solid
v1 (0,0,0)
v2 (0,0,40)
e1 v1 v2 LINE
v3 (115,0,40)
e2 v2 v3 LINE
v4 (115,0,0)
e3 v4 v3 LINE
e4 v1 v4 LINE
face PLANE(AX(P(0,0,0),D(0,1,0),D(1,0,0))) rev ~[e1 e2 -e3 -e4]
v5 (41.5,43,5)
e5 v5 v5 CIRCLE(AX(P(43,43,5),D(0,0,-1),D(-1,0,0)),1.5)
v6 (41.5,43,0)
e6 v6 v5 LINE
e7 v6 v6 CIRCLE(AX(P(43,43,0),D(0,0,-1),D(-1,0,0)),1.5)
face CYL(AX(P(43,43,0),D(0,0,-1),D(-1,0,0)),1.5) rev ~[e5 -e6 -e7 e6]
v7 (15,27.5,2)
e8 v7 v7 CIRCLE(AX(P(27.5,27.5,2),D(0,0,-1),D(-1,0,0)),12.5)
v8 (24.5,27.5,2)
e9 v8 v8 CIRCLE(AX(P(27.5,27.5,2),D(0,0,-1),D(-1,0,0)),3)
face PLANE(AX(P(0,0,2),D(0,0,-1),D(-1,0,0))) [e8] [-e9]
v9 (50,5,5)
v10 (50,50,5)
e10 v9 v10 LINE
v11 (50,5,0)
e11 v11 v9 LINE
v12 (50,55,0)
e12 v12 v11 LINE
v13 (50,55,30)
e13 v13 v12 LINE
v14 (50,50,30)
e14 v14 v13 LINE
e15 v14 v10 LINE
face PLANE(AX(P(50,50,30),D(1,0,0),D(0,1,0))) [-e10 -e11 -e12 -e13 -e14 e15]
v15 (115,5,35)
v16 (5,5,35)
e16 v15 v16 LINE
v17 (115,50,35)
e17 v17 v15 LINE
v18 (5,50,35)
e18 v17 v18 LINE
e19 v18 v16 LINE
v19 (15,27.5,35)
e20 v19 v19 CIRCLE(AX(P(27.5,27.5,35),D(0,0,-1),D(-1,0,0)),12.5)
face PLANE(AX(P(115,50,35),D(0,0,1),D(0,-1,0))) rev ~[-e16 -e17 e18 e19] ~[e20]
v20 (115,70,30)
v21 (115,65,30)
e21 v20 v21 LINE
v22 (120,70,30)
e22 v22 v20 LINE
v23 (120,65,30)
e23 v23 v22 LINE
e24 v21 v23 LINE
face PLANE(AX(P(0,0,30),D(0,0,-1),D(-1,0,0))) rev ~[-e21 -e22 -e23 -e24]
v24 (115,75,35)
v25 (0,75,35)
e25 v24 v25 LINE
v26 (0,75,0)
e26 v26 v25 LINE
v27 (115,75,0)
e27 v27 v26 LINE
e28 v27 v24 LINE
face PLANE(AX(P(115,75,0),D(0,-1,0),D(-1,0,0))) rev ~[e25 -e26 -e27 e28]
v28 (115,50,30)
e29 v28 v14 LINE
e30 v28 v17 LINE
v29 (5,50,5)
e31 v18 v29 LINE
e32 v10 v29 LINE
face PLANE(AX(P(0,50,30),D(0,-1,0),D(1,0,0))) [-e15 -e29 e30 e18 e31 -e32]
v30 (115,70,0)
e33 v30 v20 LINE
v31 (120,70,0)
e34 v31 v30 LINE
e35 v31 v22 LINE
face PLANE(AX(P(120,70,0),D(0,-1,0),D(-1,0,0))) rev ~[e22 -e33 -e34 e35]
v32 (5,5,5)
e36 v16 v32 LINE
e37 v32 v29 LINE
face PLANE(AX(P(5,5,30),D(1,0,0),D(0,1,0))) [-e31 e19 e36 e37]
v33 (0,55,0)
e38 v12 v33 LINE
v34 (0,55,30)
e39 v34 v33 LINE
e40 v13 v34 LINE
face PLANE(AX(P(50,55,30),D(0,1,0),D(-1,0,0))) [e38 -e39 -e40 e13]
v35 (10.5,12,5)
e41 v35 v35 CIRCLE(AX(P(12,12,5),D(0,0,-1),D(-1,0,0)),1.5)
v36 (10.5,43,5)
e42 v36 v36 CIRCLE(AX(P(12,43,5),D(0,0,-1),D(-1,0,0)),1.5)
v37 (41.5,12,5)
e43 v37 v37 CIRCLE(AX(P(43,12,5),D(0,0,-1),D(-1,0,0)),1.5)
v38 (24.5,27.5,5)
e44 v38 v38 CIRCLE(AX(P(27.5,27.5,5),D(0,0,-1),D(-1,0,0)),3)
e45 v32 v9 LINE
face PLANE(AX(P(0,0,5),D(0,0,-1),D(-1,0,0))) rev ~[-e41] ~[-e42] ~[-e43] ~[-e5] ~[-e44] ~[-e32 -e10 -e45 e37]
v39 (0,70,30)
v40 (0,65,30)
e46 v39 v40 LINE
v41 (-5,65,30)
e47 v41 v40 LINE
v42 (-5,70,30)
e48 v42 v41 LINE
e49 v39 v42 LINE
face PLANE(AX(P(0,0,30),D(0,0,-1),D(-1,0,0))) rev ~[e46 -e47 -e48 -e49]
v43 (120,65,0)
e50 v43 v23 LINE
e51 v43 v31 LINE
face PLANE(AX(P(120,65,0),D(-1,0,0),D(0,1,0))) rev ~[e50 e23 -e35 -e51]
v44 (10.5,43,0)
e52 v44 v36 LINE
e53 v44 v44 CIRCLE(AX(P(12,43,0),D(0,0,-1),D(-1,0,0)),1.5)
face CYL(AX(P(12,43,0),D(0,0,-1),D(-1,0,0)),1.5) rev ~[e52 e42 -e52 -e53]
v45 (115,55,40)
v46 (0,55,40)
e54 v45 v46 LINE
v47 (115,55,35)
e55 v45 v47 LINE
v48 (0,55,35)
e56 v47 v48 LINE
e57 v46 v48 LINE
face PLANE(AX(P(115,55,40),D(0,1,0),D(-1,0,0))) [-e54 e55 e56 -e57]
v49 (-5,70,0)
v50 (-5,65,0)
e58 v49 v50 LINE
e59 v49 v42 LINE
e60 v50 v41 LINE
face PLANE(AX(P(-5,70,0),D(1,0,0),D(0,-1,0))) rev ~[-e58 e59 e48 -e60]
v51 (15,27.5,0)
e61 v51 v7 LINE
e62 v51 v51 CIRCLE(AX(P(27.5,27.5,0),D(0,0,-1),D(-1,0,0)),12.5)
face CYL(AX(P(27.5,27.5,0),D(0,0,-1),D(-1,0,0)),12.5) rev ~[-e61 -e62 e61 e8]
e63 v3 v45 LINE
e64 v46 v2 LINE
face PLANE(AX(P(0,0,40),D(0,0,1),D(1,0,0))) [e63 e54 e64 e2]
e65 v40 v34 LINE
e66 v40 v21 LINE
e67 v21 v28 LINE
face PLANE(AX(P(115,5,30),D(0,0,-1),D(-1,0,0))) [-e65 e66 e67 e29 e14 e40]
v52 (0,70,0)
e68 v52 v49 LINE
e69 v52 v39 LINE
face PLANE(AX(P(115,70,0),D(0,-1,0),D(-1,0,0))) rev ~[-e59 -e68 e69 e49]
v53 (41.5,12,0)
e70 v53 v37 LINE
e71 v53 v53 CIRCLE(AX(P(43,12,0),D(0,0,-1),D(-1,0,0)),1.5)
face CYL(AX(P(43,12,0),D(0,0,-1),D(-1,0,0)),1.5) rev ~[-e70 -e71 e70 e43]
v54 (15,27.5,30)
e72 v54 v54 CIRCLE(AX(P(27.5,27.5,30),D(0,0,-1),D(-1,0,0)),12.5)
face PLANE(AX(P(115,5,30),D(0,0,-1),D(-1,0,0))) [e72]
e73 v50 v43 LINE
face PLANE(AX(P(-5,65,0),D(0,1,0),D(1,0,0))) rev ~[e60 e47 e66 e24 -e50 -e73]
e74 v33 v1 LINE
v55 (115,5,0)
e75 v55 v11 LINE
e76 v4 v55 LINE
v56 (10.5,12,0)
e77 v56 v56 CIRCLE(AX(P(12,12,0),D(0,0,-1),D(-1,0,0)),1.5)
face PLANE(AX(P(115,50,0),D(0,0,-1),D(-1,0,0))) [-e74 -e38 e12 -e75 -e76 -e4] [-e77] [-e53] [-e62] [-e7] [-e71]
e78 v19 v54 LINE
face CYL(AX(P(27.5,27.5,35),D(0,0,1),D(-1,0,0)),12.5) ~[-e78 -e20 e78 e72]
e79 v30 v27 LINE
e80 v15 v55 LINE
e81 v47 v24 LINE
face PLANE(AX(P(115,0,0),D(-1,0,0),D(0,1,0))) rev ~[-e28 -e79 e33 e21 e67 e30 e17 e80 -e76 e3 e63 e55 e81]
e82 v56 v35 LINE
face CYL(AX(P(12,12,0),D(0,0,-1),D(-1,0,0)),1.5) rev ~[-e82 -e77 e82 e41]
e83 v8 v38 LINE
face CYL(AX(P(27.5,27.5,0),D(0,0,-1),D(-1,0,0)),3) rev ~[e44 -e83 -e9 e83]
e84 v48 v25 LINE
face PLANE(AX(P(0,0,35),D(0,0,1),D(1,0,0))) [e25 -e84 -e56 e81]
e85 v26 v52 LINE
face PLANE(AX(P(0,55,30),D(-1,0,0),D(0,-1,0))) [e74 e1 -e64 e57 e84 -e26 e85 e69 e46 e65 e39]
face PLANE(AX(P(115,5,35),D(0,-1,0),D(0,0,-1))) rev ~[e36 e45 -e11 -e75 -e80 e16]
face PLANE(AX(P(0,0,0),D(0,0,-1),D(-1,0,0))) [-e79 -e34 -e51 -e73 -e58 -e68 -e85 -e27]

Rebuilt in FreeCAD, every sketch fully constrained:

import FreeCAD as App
import Part
import Sketcher
from FreeCAD import Vector
Q = App.Units.Quantity


def add_polygon(sketch, points):
    """Adds a closed chain of lines whose ends are joined by coincident constraints."""
    first, n = sketch.GeometryCount, len(points)
    for a, b in zip(points, points[1:] + points[:1]):
        sketch.addGeometry(Part.LineSegment(App.Vector(*a, 0), App.Vector(*b, 0)), False)
    for i in range(n):
        sketch.addConstraint(Sketcher.Constraint("Coincident", first + i, 2, first + (i + 1) % n, 1))

doc = App.newDocument("Part")
body = doc.addObject("PartDesign::Body", "Body")

sketch1 = body.newObject("Sketcher::SketchObject", "Sketch")
sketch1.AttachmentSupport = (doc.getObject("XY_Plane"), [""])
sketch1.MapMode = "FlatFace"
add_polygon(sketch1, [(0, 75), (0, 0), (115, 0), (115, 75)])
sketch1.addConstraint([
    Sketcher.Constraint("Vertical", 0),
    Sketcher.Constraint("Horizontal", 1),
    Sketcher.Constraint("Vertical", 2),
    Sketcher.Constraint("Horizontal", 3),
    Sketcher.Constraint("Coincident", 0, 2, -1, 1),
    Sketcher.Constraint("DistanceX", 1, 1, 1, 2, Q("115 mm")),
    Sketcher.Constraint("DistanceY", 0, 2, 0, 1, Q("75 mm")),
])
pad1 = body.newObject("PartDesign::Pad", "Pad")
pad1.Profile = sketch1
pad1.Length = 40

sketch2 = body.newObject("Sketcher::SketchObject", "Sketch001")
sketch2.AttachmentSupport = (doc.getObject("XY_Plane"), [""])
sketch2.MapMode = "FlatFace"
sketch2.AttachmentOffset = App.Placement(Vector(0, 0, 40), App.Rotation())
add_polygon(sketch2, [(115, 55), (115, 75), (0, 75), (0, 55)])
sketch2.addConstraint([
    Sketcher.Constraint("Vertical", 0),
    Sketcher.Constraint("Horizontal", 1),
    Sketcher.Constraint("Vertical", 2),
    Sketcher.Constraint("Horizontal", 3),
    Sketcher.Constraint("PointOnObject", 1, 2, -2),
    Sketcher.Constraint("DistanceY", 0, 1, 0, 2, Q("20 mm")),
    Sketcher.Constraint("DistanceX", 1, 2, 1, 1, Q("115 mm")),
    Sketcher.Constraint("DistanceY", -1, 1, 0, 2, Q("75 mm")),
])
pocket1 = body.newObject("PartDesign::Pocket", "Pocket")
pocket1.Profile = sketch2
pocket1.Length = 5

sketch3 = body.newObject("Sketcher::SketchObject", "Sketch002")
sketch3.AttachmentSupport = (doc.getObject("YZ_Plane"), [""])
sketch3.MapMode = "FlatFace"
sketch3.AttachmentOffset = App.Placement(Vector(0, 0, 115), App.Rotation())
add_polygon(sketch3, [(5, 0), (70, 0), (70, 30), (50, 30), (50, 35), (5, 35)])
sketch3.addConstraint([
    Sketcher.Constraint("Horizontal", 0),
    Sketcher.Constraint("Vertical", 1),
    Sketcher.Constraint("Horizontal", 2),
    Sketcher.Constraint("Vertical", 3),
    Sketcher.Constraint("Horizontal", 4),
    Sketcher.Constraint("Vertical", 5),
    Sketcher.Constraint("PointOnObject", 0, 2, -1),
    Sketcher.Constraint("DistanceY", 3, 1, 3, 2, Q("5 mm")),
    Sketcher.Constraint("DistanceX", -1, 1, 4, 2, Q("5 mm")),
    Sketcher.Constraint("DistanceX", 0, 1, 0, 2, Q("65 mm")),
    Sketcher.Constraint("DistanceX", 2, 2, 2, 1, Q("20 mm")),
    Sketcher.Constraint("DistanceY", 1, 1, 1, 2, Q("30 mm")),
])
pocket2 = body.newObject("PartDesign::Pocket", "Pocket001")
pocket2.Profile = sketch3
pocket2.Type = "ThroughAll"

sketch4 = body.newObject("Sketcher::SketchObject", "Sketch003")
sketch4.AttachmentSupport = (doc.getObject("XY_Plane"), [""])
sketch4.MapMode = "FlatFace"
sketch4.AttachmentOffset = App.Placement(Vector(0, 0, 35), App.Rotation())
add_polygon(sketch4, [(0, 50), (5, 50), (5, 5), (0, 5)])
sketch4.addConstraint([
    Sketcher.Constraint("Horizontal", 0),
    Sketcher.Constraint("Vertical", 1),
    Sketcher.Constraint("Horizontal", 2),
    Sketcher.Constraint("Vertical", 3),
    Sketcher.Constraint("PointOnObject", 2, 2, -2),
    Sketcher.Constraint("DistanceX", 0, 1, 0, 2, Q("5 mm")),
    Sketcher.Constraint("DistanceY", -1, 1, 1, 2, Q("5 mm")),
    Sketcher.Constraint("DistanceY", 1, 2, 1, 1, Q("45 mm")),
])
pad2 = body.newObject("PartDesign::Pad", "Pad001")
pad2.Profile = sketch4
pad2.Length = 5
pad2.Reversed = True

sketch5 = body.newObject("Sketcher::SketchObject", "Sketch004")
sketch5.AttachmentSupport = (doc.getObject("XY_Plane"), [""])
sketch5.MapMode = "FlatFace"
sketch5.AttachmentOffset = App.Placement(Vector(0, 0, 30), App.Rotation())
add_polygon(sketch5, [(0, 5), (0, 50), (5, 50), (5, 5)])
sketch5.addConstraint([
    Sketcher.Constraint("Vertical", 0),
    Sketcher.Constraint("Horizontal", 1),
    Sketcher.Constraint("Vertical", 2),
    Sketcher.Constraint("Horizontal", 3),
    Sketcher.Constraint("PointOnObject", 0, 2, -2),
    Sketcher.Constraint("DistanceX", 1, 1, 1, 2, Q("5 mm")),
    Sketcher.Constraint("DistanceY", 0, 1, 0, 2, Q("45 mm")),
    Sketcher.Constraint("DistanceY", -1, 1, 2, 2, Q("5 mm")),
])
pad3 = body.newObject("PartDesign::Pad", "Pad002")
pad3.Profile = sketch5
pad3.Length = 30
pad3.Reversed = True

sketch6 = body.newObject("Sketcher::SketchObject", "Sketch005")
sketch6.AttachmentSupport = (doc.getObject("XY_Plane"), [""])
sketch6.MapMode = "FlatFace"
add_polygon(sketch6, [(50, 5), (5, 5), (5, 50), (50, 50)])
sketch6.addConstraint([
    Sketcher.Constraint("Horizontal", 0),
    Sketcher.Constraint("Vertical", 1),
    Sketcher.Constraint("Horizontal", 2),
    Sketcher.Constraint("Vertical", 3),
    Sketcher.Constraint("Equal", 2, 1),
    Sketcher.Constraint("DistanceX", 0, 2, 0, 1, Q("45 mm")),
    Sketcher.Constraint("DistanceX", -1, 1, 0, 2, Q("5 mm")),
    Sketcher.Constraint("DistanceY", -1, 1, 0, 2, Q("5 mm")),
])
pad4 = body.newObject("PartDesign::Pad", "Pad003")
pad4.Profile = sketch6
pad4.Length = 5

sketch7 = body.newObject("Sketcher::SketchObject", "Sketch006")
sketch7.AttachmentSupport = (doc.getObject("XY_Plane"), [""])
sketch7.MapMode = "FlatFace"
sketch7.addGeometry([
    Part.Circle(Vector(43, 43, 0), Vector(0, 0, 1), 1.5),
    Part.Circle(Vector(12, 43, 0), Vector(0, 0, 1), 1.5),
    Part.Circle(Vector(43, 12, 0), Vector(0, 0, 1), 1.5),
    Part.Circle(Vector(12, 12, 0), Vector(0, 0, 1), 1.5),
    Part.Circle(Vector(27.5, 27.5, 0), Vector(0, 0, 1), 3),
], False)
sketch7.addConstraint([
    Sketcher.Constraint("Equal", 0, 1),
    Sketcher.Constraint("Equal", 1, 2),
    Sketcher.Constraint("Equal", 2, 3),
    Sketcher.Constraint("Horizontal", 0, 3, 1, 3),
    Sketcher.Constraint("Horizontal", 2, 3, 3, 3),
    Sketcher.Constraint("Vertical", 0, 3, 2, 3),
    Sketcher.Constraint("Vertical", 1, 3, 3, 3),
    Sketcher.Constraint("Diameter", 0, Q("3 mm")),
    Sketcher.Constraint("Diameter", 4, Q("6 mm")),
    Sketcher.Constraint("DistanceX", 1, 3, 0, 3, Q("31 mm")),
    Sketcher.Constraint("DistanceY", 2, 3, 0, 3, Q("31 mm")),
    Sketcher.Constraint("DistanceX", -1, 1, 0, 3, Q("43 mm")),
    Sketcher.Constraint("DistanceY", -1, 1, 0, 3, Q("43 mm")),
    Sketcher.Constraint("DistanceX", -1, 1, 4, 3, Q("27.5 mm")),
    Sketcher.Constraint("DistanceY", -1, 1, 4, 3, Q("27.5 mm")),
])
pocket3 = body.newObject("PartDesign::Pocket", "Pocket002")
pocket3.Profile = sketch7
pocket3.Length = 5
pocket3.Reversed = True

sketch8 = body.newObject("Sketcher::SketchObject", "Sketch007")
sketch8.AttachmentSupport = (doc.getObject("XY_Plane"), [""])
sketch8.MapMode = "FlatFace"
sketch8.addGeometry([
    Part.Circle(Vector(27.5, 27.5, 0), Vector(0, 0, 1), 12.5),
    Part.Circle(Vector(27.5, 27.5, 0), Vector(0, 0, 1), 3),
], False)
sketch8.addConstraint([
    Sketcher.Constraint("Coincident", 1, 3, 0, 3),
    Sketcher.Constraint("Diameter", 0, Q("25 mm")),
    Sketcher.Constraint("Diameter", 1, Q("6 mm")),
    Sketcher.Constraint("DistanceX", -1, 1, 0, 3, Q("27.5 mm")),
    Sketcher.Constraint("DistanceY", -1, 1, 0, 3, Q("27.5 mm")),
])
pocket4 = body.newObject("PartDesign::Pocket", "Pocket003")
pocket4.Profile = sketch8
pocket4.Length = 2
pocket4.Reversed = True

sketch9 = body.newObject("Sketcher::SketchObject", "Sketch008")
sketch9.AttachmentSupport = (doc.getObject("XY_Plane"), [""])
sketch9.MapMode = "FlatFace"
sketch9.AttachmentOffset = App.Placement(Vector(0, 0, 30), App.Rotation())
add_polygon(sketch9, [(0, 50), (0, 55), (50, 55), (50, 50)])
sketch9.addConstraint([
    Sketcher.Constraint("Vertical", 0),
    Sketcher.Constraint("Horizontal", 1),
    Sketcher.Constraint("Vertical", 2),
    Sketcher.Constraint("Horizontal", 3),
    Sketcher.Constraint("PointOnObject", 0, 2, -2),
    Sketcher.Constraint("DistanceX", 1, 1, 1, 2, Q("50 mm")),
    Sketcher.Constraint("DistanceY", 0, 1, 0, 2, Q("5 mm")),
    Sketcher.Constraint("DistanceY", -1, 1, 2, 2, Q("50 mm")),
])
pad5 = body.newObject("PartDesign::Pad", "Pad004")
pad5.Profile = sketch9
pad5.Length = 30
pad5.Reversed = True

sketch10 = body.newObject("Sketcher::SketchObject", "Sketch009")
sketch10.AttachmentSupport = (doc.getObject("XY_Plane"), [""])
sketch10.MapMode = "FlatFace"
sketch10.AttachmentOffset = App.Placement(Vector(0, 0, 35), App.Rotation())
sketch10.addGeometry(Part.Circle(Vector(28, 28, 0), Vector(0, 0, 1), 12), False)
sketch10.addConstraint([
    Sketcher.Constraint("Diameter", 0, Q("25 mm")),
    Sketcher.Constraint("DistanceX", -1, 1, 0, 3, Q("27.5 mm")),
    Sketcher.Constraint("DistanceY", -1, 1, 0, 3, Q("27.5 mm")),
])
pad6 = body.newObject("PartDesign::Pad", "Pad005")
pad6.Profile = sketch10
pad6.Length = 5
pad6.Reversed = True

sketch11 = body.newObject("Sketcher::SketchObject", "Sketch010")
sketch11.AttachmentSupport = (doc.getObject("XY_Plane"), [""])
sketch11.MapMode = "FlatFace"
add_polygon(sketch11, [(-5, 70), (120, 70), (120, 65), (-5, 65)])
sketch11.addConstraint([
    Sketcher.Constraint("Horizontal", 0),
    Sketcher.Constraint("Vertical", 1),
    Sketcher.Constraint("Horizontal", 2),
    Sketcher.Constraint("Vertical", 3),
    Sketcher.Constraint("DistanceY", 1, 2, 1, 1, Q("5 mm")),
    Sketcher.Constraint("DistanceX", 2, 2, -1, 1, Q("5 mm")),
    Sketcher.Constraint("DistanceX", 0, 1, 0, 2, Q("125 mm")),
    Sketcher.Constraint("DistanceY", -1, 1, 0, 2, Q("70 mm")),
])
pad7 = body.newObject("PartDesign::Pad", "Pad006")
pad7.Profile = sketch11
pad7.Length = 30

doc.recompute()
